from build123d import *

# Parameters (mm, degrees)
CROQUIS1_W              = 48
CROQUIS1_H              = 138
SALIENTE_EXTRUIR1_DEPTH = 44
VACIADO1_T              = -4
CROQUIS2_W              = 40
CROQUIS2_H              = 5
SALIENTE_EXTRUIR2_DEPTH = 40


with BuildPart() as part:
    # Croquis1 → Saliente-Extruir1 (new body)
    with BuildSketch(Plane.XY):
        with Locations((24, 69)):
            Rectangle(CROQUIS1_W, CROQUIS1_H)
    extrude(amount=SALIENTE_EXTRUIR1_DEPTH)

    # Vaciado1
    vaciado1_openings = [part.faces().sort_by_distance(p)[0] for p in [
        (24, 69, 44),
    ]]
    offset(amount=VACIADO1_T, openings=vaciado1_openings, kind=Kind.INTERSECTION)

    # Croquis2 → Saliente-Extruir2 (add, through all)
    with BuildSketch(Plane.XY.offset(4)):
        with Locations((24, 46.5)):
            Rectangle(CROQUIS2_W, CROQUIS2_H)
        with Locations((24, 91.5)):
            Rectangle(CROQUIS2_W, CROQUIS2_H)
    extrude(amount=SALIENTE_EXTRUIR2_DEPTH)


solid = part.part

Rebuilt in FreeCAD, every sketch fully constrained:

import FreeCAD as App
import Part
import Sketcher
Q = App.Units.Quantity


def faces_at(feature, points):
    """Names of the faces that lie closest to the given points."""
    faces = feature.Shape.Faces
    near = lambda p: min(range(len(faces)), key=lambda i: faces[i].distToShape(Part.Vertex(*p))[0])
    return sorted({f"Face{near(p) + 1}" for p in points})

doc = App.newDocument("Part")
params = doc.addObject("Spreadsheet::Sheet", "Params")
for row, (alias, value) in enumerate([
    ("sketch1_width", "48 mm"),
    ("sketch1_height", "138 mm"),
    ("pad1_length", "44 mm"),
    ("thickness_wall", "4 mm"),
    ("sketch2_width", "40 mm"),
    ("sketch2_height", "5 mm"),
    ("pad2_length", "40 mm"),
], start=1):
    params.set(f"A{row}", alias)
    params.set(f"B{row}", "=" + value)
    params.setAlias(f"B{row}", alias)

body = doc.addObject("PartDesign::Body", "Body")

# Sketch on XY plane
sketch1 = body.newObject("Sketcher::SketchObject", "Sketch")
sketch1.AttachmentSupport = (doc.getObject("XY_Plane"), [""])
sketch1.MapMode = "FlatFace"
sketch1.addGeometry(Part.LineSegment(App.Vector(0, 138, 0), App.Vector(0, 0, 0)), False)
sketch1.addGeometry(Part.LineSegment(App.Vector(0, 0, 0), App.Vector(48, 0, 0)), False)
sketch1.addGeometry(Part.LineSegment(App.Vector(48, 0, 0), App.Vector(48, 138, 0)), False)
sketch1.addGeometry(Part.LineSegment(App.Vector(48, 138, 0), App.Vector(0, 138, 0)), False)
sketch1.addConstraint(Sketcher.Constraint("Coincident", 0, 2, 1, 1))
sketch1.addConstraint(Sketcher.Constraint("Coincident", 1, 2, 2, 1))
sketch1.addConstraint(Sketcher.Constraint("Coincident", 2, 2, 3, 1))
sketch1.addConstraint(Sketcher.Constraint("Coincident", 3, 2, 0, 1))
sketch1.addConstraint(Sketcher.Constraint("Vertical", 0))
sketch1.addConstraint(Sketcher.Constraint("Horizontal", 1))
sketch1.addConstraint(Sketcher.Constraint("Vertical", 2))
sketch1.addConstraint(Sketcher.Constraint("Horizontal", 3))
sketch1.addConstraint(Sketcher.Constraint("Coincident", 0, 2, -1, 1))
sketch1.addConstraint(Sketcher.Constraint("DistanceX", 1, 1, 1, 2, Q("48 mm")))
sketch1.addConstraint(Sketcher.Constraint("DistanceY", 0, 2, 0, 1, Q("138 mm")))
sketch1.setExpression("Constraints[9]", "Params.sketch1_width")
sketch1.setExpression("Constraints[10]", "Params.sketch1_height")
pad1 = body.newObject("PartDesign::Pad", "Pad")
pad1.Profile = sketch1
pad1.setExpression("Length", "Params.pad1_length")
doc.recompute()

thickness = body.newObject("PartDesign::Thickness", "Thickness")
thickness.Base = (pad1, faces_at(pad1, [(24, 69, 44)]))
thickness.setExpression("Value", "Params.thickness_wall")
thickness.Reversed = True
thickness.Join = "Intersection"

# Sketch on XY plane
sketch2 = body.newObject("Sketcher::SketchObject", "Sketch001")
sketch2.AttachmentSupport = (doc.getObject("XY_Plane"), [""])
sketch2.MapMode = "FlatFace"
sketch2.AttachmentOffset = App.Placement(App.Vector(0, 0, 4), App.Rotation())
sketch2.addGeometry(Part.LineSegment(App.Vector(4, 49, 0), App.Vector(4, 44, 0)), False)
sketch2.addGeometry(Part.LineSegment(App.Vector(4, 44, 0), App.Vector(44, 44, 0)), False)
sketch2.addGeometry(Part.LineSegment(App.Vector(44, 44, 0), App.Vector(44, 49, 0)), False)
sketch2.addGeometry(Part.LineSegment(App.Vector(44, 49, 0), App.Vector(4, 49, 0)), False)
sketch2.addGeometry(Part.LineSegment(App.Vector(4, 94, 0), App.Vector(4, 89, 0)), False)
sketch2.addGeometry(Part.LineSegment(App.Vector(4, 89, 0), App.Vector(44, 89, 0)), False)
sketch2.addGeometry(Part.LineSegment(App.Vector(44, 89, 0), App.Vector(44, 94, 0)), False)
sketch2.addGeometry(Part.LineSegment(App.Vector(44, 94, 0), App.Vector(4, 94, 0)), False)
sketch2.addConstraint(Sketcher.Constraint("Coincident", 0, 2, 1, 1))
sketch2.addConstraint(Sketcher.Constraint("Coincident", 1, 2, 2, 1))
sketch2.addConstraint(Sketcher.Constraint("Coincident", 2, 2, 3, 1))
sketch2.addConstraint(Sketcher.Constraint("Coincident", 3, 2, 0, 1))
sketch2.addConstraint(Sketcher.Constraint("Coincident", 4, 2, 5, 1))
sketch2.addConstraint(Sketcher.Constraint("Coincident", 5, 2, 6, 1))
sketch2.addConstraint(Sketcher.Constraint("Coincident", 6, 2, 7, 1))
sketch2.addConstraint(Sketcher.Constraint("Coincident", 7, 2, 4, 1))
sketch2.addConstraint(Sketcher.Constraint("Vertical", 0))
sketch2.addConstraint(Sketcher.Constraint("Horizontal", 1))
sketch2.addConstraint(Sketcher.Constraint("Vertical", 2))
sketch2.addConstraint(Sketcher.Constraint("Horizontal", 3))
sketch2.addConstraint(Sketcher.Constraint("Vertical", 4))
sketch2.addConstraint(Sketcher.Constraint("Horizontal", 5))
sketch2.addConstraint(Sketcher.Constraint("Vertical", 6))
sketch2.addConstraint(Sketcher.Constraint("Horizontal", 7))
sketch2.addConstraint(Sketcher.Constraint("Vertical", 3, 2, 4, 2))
sketch2.addConstraint(Sketcher.Constraint("Vertical", 2, 2, 5, 2))
sketch2.addConstraint(Sketcher.Constraint("Equal", 2, 4))
sketch2.addConstraint(Sketcher.Constraint("DistanceX", 1, 1, 1, 2, Q("40 mm")))
sketch2.addConstraint(Sketcher.Constraint("DistanceY", 0, 2, 0, 1, Q("5 mm")))
sketch2.addConstraint(Sketcher.Constraint("DistanceX", -1, 1, 0, 2, Q("4 mm")))
sketch2.addConstraint(Sketcher.Constraint("DistanceY", -1, 1, 0, 2, Q("44 mm")))
sketch2.addConstraint(Sketcher.Constraint("DistanceY", -1, 1, 4, 2, Q("89 mm")))
sketch2.setExpression("Constraints[19]", "Params.sketch2_width")
sketch2.setExpression("Constraints[20]", "Params.sketch2_height")
pad2 = body.newObject("PartDesign::Pad", "Pad001")
pad2.Profile = sketch2
pad2.setExpression("Length", "Params.pad2_length")

doc.recompute()
